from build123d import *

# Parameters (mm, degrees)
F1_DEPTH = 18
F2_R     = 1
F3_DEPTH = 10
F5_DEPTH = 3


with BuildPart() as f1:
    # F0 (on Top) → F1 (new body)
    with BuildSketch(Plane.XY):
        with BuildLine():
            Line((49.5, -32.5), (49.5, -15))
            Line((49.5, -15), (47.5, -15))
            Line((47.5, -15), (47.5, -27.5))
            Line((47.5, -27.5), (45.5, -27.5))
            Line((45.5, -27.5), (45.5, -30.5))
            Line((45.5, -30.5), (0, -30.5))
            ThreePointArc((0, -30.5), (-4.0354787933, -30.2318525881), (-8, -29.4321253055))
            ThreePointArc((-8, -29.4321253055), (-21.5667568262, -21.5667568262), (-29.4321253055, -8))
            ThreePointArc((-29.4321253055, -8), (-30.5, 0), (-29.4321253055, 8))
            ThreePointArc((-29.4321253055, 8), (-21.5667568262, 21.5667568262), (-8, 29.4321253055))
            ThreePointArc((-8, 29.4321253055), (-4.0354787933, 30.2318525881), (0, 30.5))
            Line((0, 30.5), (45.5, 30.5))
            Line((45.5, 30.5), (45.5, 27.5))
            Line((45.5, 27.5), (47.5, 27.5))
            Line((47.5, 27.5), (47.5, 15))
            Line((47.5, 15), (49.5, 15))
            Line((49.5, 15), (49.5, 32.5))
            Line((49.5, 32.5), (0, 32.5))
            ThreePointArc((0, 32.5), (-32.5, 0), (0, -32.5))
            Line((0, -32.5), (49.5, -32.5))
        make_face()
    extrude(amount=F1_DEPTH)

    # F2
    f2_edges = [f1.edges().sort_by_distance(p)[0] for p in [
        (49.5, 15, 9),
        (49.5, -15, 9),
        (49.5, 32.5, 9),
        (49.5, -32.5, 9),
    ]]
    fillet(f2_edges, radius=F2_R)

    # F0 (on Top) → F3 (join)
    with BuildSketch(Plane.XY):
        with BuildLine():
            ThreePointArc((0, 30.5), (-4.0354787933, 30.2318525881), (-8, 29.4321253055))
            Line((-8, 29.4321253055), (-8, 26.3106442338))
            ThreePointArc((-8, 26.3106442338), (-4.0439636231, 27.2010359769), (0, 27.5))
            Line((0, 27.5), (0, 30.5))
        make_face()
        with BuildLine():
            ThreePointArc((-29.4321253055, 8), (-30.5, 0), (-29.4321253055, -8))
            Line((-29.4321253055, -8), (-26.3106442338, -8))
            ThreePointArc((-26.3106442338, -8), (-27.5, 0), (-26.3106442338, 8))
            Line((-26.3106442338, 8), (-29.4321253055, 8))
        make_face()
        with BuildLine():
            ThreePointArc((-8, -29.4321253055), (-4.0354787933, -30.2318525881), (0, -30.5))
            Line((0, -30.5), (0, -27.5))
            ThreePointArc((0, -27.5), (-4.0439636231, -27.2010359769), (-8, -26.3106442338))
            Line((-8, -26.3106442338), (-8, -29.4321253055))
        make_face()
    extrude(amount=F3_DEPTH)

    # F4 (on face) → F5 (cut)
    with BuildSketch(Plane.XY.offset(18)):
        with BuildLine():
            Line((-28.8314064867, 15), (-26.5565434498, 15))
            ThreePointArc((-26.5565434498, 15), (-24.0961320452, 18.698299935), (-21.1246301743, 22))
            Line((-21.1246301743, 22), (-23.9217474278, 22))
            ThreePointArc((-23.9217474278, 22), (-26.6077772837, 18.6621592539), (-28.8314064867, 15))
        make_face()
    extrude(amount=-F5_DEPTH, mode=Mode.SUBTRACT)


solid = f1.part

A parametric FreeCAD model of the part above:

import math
import FreeCAD as App
import Part
import Sketcher
from FreeCAD import Vector


def edges_at(feature, points):
    """Names of the edges that pass closest to the given points."""
    edges = feature.Shape.Edges
    near = lambda p: min(range(len(edges)), key=lambda i: edges[i].distToShape(Part.Vertex(*p))[0])
    return sorted({f"Edge{near(p) + 1}" for p in points})

doc = App.newDocument("Part")
params = doc.addObject("Spreadsheet::Sheet", "Params")
for row, (alias, value) in enumerate([
    ("sketch1_radius", "30.5 mm"),
    ("sketch1_radius2", "32.5 mm"),
    ("sketch1_width", "2 mm"),
    ("sketch1_height", "3 mm"),
    ("sketch1_width2", "45.5 mm"),
    ("pad1_length", "18 mm"),
    ("fillet_radius", "1 mm"),
    ("sketch2_radius", "30.5 mm"),
    ("sketch2_radius2", "27.5 mm"),
    ("pad2_length", "10 mm"),
    ("sketch3_radius", "30.5 mm"),
    ("sketch3_radius2", "32.5 mm"),
    ("pocket1_length", "3 mm"),
], start=1):
    params.set(f"A{row}", alias)
    params.set(f"B{row}", "=" + value)
    params.setAlias(f"B{row}", alias)

body = doc.addObject("PartDesign::Body", "Body")

# Sketch on XY plane
sketch1 = body.newObject("Sketcher::SketchObject", "Sketch")
sketch1.AttachmentSupport = (doc.getObject("XY_Plane"), [""])
sketch1.MapMode = "FlatFace"
sketch1.addGeometry([
    Part.LineSegment(Vector(49.5, -32.5, 0), Vector(49.5, -15, 0)),  # 0
    Part.LineSegment(Vector(49.5, -15, 0), Vector(47.5, -15, 0)),  # 1
    Part.LineSegment(Vector(47.5, -15, 0), Vector(47.5, -27.5, 0)),  # 2
    Part.LineSegment(Vector(47.5, -27.5, 0), Vector(45.5, -27.5, 0)),  # 3
    Part.LineSegment(Vector(45.5, -27.5, 0), Vector(45.5, -30.5, 0)),  # 4
    Part.LineSegment(Vector(45.5, -30.5, 0), Vector(0, -30.5, 0)),  # 5
    Part.ArcOfCircle(Part.Circle(Vector(0, 0, 0), Vector(0, 0, 1), 30.5), math.radians(-105.21), math.radians(-90)),  # 6
    Part.ArcOfCircle(Part.Circle(Vector(0, 0, 0), Vector(0, 0, 1), 30.5), math.radians(-165), math.radians(-105)),  # 7
    Part.ArcOfCircle(Part.Circle(Vector(0, 0, 0), Vector(0, 0, 1), 30.5), math.radians(165), math.radians(195)),  # 8
    Part.ArcOfCircle(Part.Circle(Vector(0, 0, 0), Vector(0, 0, 1), 30.5), math.radians(105), math.radians(165)),  # 9
    Part.ArcOfCircle(Part.Circle(Vector(0, 0, 0), Vector(0, 0, 1), 30.5), math.radians(90), math.radians(105.21)),  # 10
    Part.LineSegment(Vector(0, 30.5, 0), Vector(45.5, 30.5, 0)),  # 11
    Part.LineSegment(Vector(45.5, 30.5, 0), Vector(45.5, 27.5, 0)),  # 12
    Part.LineSegment(Vector(45.5, 27.5, 0), Vector(47.5, 27.5, 0)),  # 13
    Part.LineSegment(Vector(47.5, 27.5, 0), Vector(47.5, 15, 0)),  # 14
    Part.LineSegment(Vector(47.5, 15, 0), Vector(49.5, 15, 0)),  # 15
    Part.LineSegment(Vector(49.5, 15, 0), Vector(49.5, 32.5, 0)),  # 16
    Part.LineSegment(Vector(49.5, 32.5, 0), Vector(0, 32.5, 0)),  # 17
    Part.ArcOfCircle(Part.Circle(Vector(0, 0, 0), Vector(0, 0, 1), 32.5), math.radians(90), math.radians(270)),  # 18
    Part.LineSegment(Vector(0, -32.5, 0), Vector(49.5, -32.5, 0)),  # 19
], False)
sketch1.addConstraint([
    Sketcher.Constraint("Coincident", 0, 2, 1, 1),
    Sketcher.Constraint("Coincident", 1, 2, 2, 1),
    Sketcher.Constraint("Coincident", 2, 2, 3, 1),
    Sketcher.Constraint("Coincident", 3, 2, 4, 1),
    Sketcher.Constraint("Coincident", 4, 2, 5, 1),
    Sketcher.Constraint("Tangent", 5, 2, 6, 2),
    Sketcher.Constraint("Tangent", 6, 1, 7, 2),
    Sketcher.Constraint("Tangent", 7, 1, 8, 2),
    Sketcher.Constraint("Tangent", 8, 1, 9, 2),
    Sketcher.Constraint("Tangent", 9, 1, 10, 2),
    Sketcher.Constraint("Tangent", 10, 1, 11, 1),
    Sketcher.Constraint("Coincident", 11, 2, 12, 1),
    Sketcher.Constraint("Coincident", 12, 2, 13, 1),
    Sketcher.Constraint("Coincident", 13, 2, 14, 1),
    Sketcher.Constraint("Coincident", 14, 2, 15, 1),
    Sketcher.Constraint("Coincident", 15, 2, 16, 1),
    Sketcher.Constraint("Coincident", 16, 2, 17, 1),
    Sketcher.Constraint("Tangent", 17, 2, 18, 1),
    Sketcher.Constraint("Tangent", 18, 2, 19, 1),
    Sketcher.Constraint("Coincident", 19, 2, 0, 1),
    Sketcher.Constraint("Vertical", 0),
    Sketcher.Constraint("Horizontal", 1),
    Sketcher.Constraint("Vertical", 2),
    Sketcher.Constraint("Horizontal", 3),
    Sketcher.Constraint("Vertical", 4),
    Sketcher.Constraint("Horizontal", 5),
    Sketcher.Constraint("Horizontal", 11),
    Sketcher.Constraint("Vertical", 12),
    Sketcher.Constraint("Horizontal", 13),
    Sketcher.Constraint("Vertical", 14),
    Sketcher.Constraint("Horizontal", 15),
    Sketcher.Constraint("Vertical", 16),
    Sketcher.Constraint("Horizontal", 17),
    Sketcher.Constraint("Horizontal", 19),
    Sketcher.Constraint("Coincident", 6, 3, -1, 1),
    Sketcher.Constraint("Coincident", 8, 3, -1, 1),
    Sketcher.Constraint("Coincident", 10, 3, -1, 1),
    Sketcher.Constraint("Coincident", 18, 3, -1, 1),
    Sketcher.Constraint("Symmetric", 3, 2, 12, 2, -1),
    Sketcher.Constraint("Symmetric", 1, 2, 14, 2, -1),
    Sketcher.Constraint("Vertical", 7, 1, 8, 1),
    Sketcher.Constraint("Vertical", 6, 1, 9, 1),
    Sketcher.Constraint("Vertical", 0, 2, 15, 2),
    Sketcher.Constraint("Equal", 1, 3),
    Sketcher.Constraint("Radius", 6, 30.5),
    Sketcher.Constraint("Radius", 18, 32.5),
    Sketcher.Constraint("DistanceX", 1, 2, 1, 1, 2.0),
    Sketcher.Constraint("DistanceY", 4, 2, 4, 1, 3.0),
    Sketcher.Constraint("DistanceX", 5, 2, 5, 1, 45.5),
    Sketcher.Constraint("DistanceY", 0, 1, 0, 2, 17.5),
    Sketcher.Constraint("DistanceX", 6, 1, -1, 1, 8.0),
    Sketcher.Constraint("DistanceY", 7, 1, -1, 1, 8.0),
])
sketch1.setExpression("Constraints[44]", "Params.sketch1_radius")
sketch1.setExpression("Constraints[45]", "Params.sketch1_radius2")
sketch1.setExpression("Constraints[46]", "Params.sketch1_width")
sketch1.setExpression("Constraints[47]", "Params.sketch1_height")
sketch1.setExpression("Constraints[48]", "Params.sketch1_width2")
pad1 = body.newObject("PartDesign::Pad", "Pad")
pad1.Profile = sketch1
pad1.setExpression("Length", "Params.pad1_length")
doc.recompute()

fillet = body.newObject("PartDesign::Fillet", "Fillet")
fillet.Base = (pad1, edges_at(pad1, [
    (49.5, 15, 9),
    (49.5, -15, 9),
    (49.5, 32.5, 9),
    (49.5, -32.5, 9),
]))
fillet.setExpression("Radius", "Params.fillet_radius")

# Sketch on XY plane
sketch2 = body.newObject("Sketcher::SketchObject", "Sketch001")
sketch2.AttachmentSupport = (doc.getObject("XY_Plane"), [""])
sketch2.MapMode = "FlatFace"
sketch2.addGeometry([
    Part.ArcOfCircle(Part.Circle(Vector(0, 0, 0), Vector(0, 0, 1), 30.5), math.radians(90), math.radians(105.21)),  # 0
    Part.LineSegment(Vector(-8, 29.4, 0), Vector(-8, 26.3, 0)),  # 1
    Part.ArcOfCircle(Part.Circle(Vector(0, 0, 0), Vector(0, 0, 1), 27.5), math.radians(90), math.radians(106.91)),  # 2
    Part.LineSegment(Vector(0, 27.5, 0), Vector(0, 30.5, 0)),  # 3
    Part.ArcOfCircle(Part.Circle(Vector(0, 0, 0), Vector(0, 0, 1), 30.5), math.radians(165), math.radians(195)),  # 4
    Part.LineSegment(Vector(-29.4, -8, 0), Vector(-26.3, -8, 0)),  # 5
    Part.ArcOfCircle(Part.Circle(Vector(0, 0, 0), Vector(0, 0, 1), 27.5), math.radians(163), math.radians(197)),  # 6
    Part.LineSegment(Vector(-26.3, 8, 0), Vector(-29.4, 8, 0)),  # 7
    Part.ArcOfCircle(Part.Circle(Vector(0, 0, 0), Vector(0, 0, 1), 30.5), math.radians(-105.21), math.radians(-90)),  # 8
    Part.LineSegment(Vector(0, -30.5, 0), Vector(0, -27.5, 0)),  # 9
    Part.ArcOfCircle(Part.Circle(Vector(0, 0, 0), Vector(0, 0, 1), 27.5), math.radians(-106.91), math.radians(-90)),  # 10
    Part.LineSegment(Vector(-8, -26.3, 0), Vector(-8, -29.4, 0)),  # 11
], False)
sketch2.addConstraint([
    Sketcher.Constraint("Coincident", 0, 2, 1, 1),
    Sketcher.Constraint("Coincident", 1, 2, 2, 2),
    Sketcher.Constraint("Coincident", 2, 1, 3, 1),
    Sketcher.Constraint("Coincident", 3, 2, 0, 1),
    Sketcher.Constraint("Coincident", 4, 2, 5, 1),
    Sketcher.Constraint("Coincident", 5, 2, 6, 2),
    Sketcher.Constraint("Coincident", 6, 1, 7, 1),
    Sketcher.Constraint("Coincident", 7, 2, 4, 1),
    Sketcher.Constraint("Coincident", 8, 2, 9, 1),
    Sketcher.Constraint("Coincident", 9, 2, 10, 2),
    Sketcher.Constraint("Coincident", 10, 1, 11, 1),
    Sketcher.Constraint("Coincident", 11, 2, 8, 1),
    Sketcher.Constraint("Vertical", 1),
    Sketcher.Constraint("Vertical", 3),
    Sketcher.Constraint("Horizontal", 5),
    Sketcher.Constraint("Horizontal", 7),
    Sketcher.Constraint("Vertical", 9),
    Sketcher.Constraint("Vertical", 11),
    Sketcher.Constraint("Coincident", 0, 3, -1, 1),
    Sketcher.Constraint("Coincident", 2, 3, -1, 1),
    Sketcher.Constraint("Coincident", 4, 3, -1, 1),
    Sketcher.Constraint("Coincident", 6, 3, -1, 1),
    Sketcher.Constraint("Coincident", 8, 3, -1, 1),
    Sketcher.Constraint("Coincident", 10, 3, -1, 1),
    Sketcher.Constraint("Equal", 0, 4),
    Sketcher.Constraint("Equal", 2, 6),
    Sketcher.Constraint("Equal", 4, 8),
    Sketcher.Constraint("Equal", 6, 10),
    Sketcher.Constraint("PointOnObject", 2, 1, -2),
    Sketcher.Constraint("PointOnObject", 8, 2, -2),
    Sketcher.Constraint("Vertical", 5, 2, 6, 1),
    Sketcher.Constraint("Vertical", 1, 2, 10, 1),
    Sketcher.Constraint("Equal", 7, 1),
    Sketcher.Constraint("Radius", 0, 30.5),
    Sketcher.Constraint("Radius", 2, 27.5),
    Sketcher.Constraint("DistanceX", 0, 2, -1, 1, 8.0),
])
sketch2.setExpression("Constraints[33]", "Params.sketch2_radius")
sketch2.setExpression("Constraints[34]", "Params.sketch2_radius2")
pad2 = body.newObject("PartDesign::Pad", "Pad001")
pad2.Profile = sketch2
pad2.setExpression("Length", "Params.pad2_length")

# Sketch on XY plane
sketch3 = body.newObject("Sketcher::SketchObject", "Sketch002")
sketch3.AttachmentSupport = (doc.getObject("XY_Plane"), [""])
sketch3.MapMode = "FlatFace"
sketch3.AttachmentOffset = App.Placement(Vector(0, 0, 18), App.Rotation())
sketch3.addGeometry([
    Part.LineSegment(Vector(-28.8, 15, 0), Vector(-26.6, 15, 0)),
    Part.ArcOfCircle(Part.Circle(Vector(0, 0, 0), Vector(0, 0, 1), 30.5), math.radians(133.84), math.radians(150.54)),
    Part.LineSegment(Vector(-21.1, 22, 0), Vector(-23.9, 22, 0)),
    Part.ArcOfCircle(Part.Circle(Vector(0, 0, 0), Vector(0, 0, 1), 32.5), math.radians(137.4), math.radians(152.51)),
], False)
sketch3.addConstraint([
    Sketcher.Constraint("Coincident", 0, 2, 1, 2),
    Sketcher.Constraint("Coincident", 1, 1, 2, 1),
    Sketcher.Constraint("Coincident", 2, 2, 3, 1),
    Sketcher.Constraint("Coincident", 3, 2, 0, 1),
    Sketcher.Constraint("Horizontal", 0),
    Sketcher.Constraint("Horizontal", 2),
    Sketcher.Constraint("Coincident", 1, 3, -1, 1),
    Sketcher.Constraint("Coincident", 3, 3, -1, 1),
    Sketcher.Constraint("Radius", 1, 30.5),
    Sketcher.Constraint("Radius", 3, 32.5),
    Sketcher.Constraint("DistanceY", -1, 1, 0, 2, 15.0),
    Sketcher.Constraint("DistanceY", -1, 1, 1, 1, 22.0),
])
sketch3.setExpression("Constraints[8]", "Params.sketch3_radius")
sketch3.setExpression("Constraints[9]", "Params.sketch3_radius2")
pocket1 = body.newObject("PartDesign::Pocket", "Pocket")
pocket1.Profile = sketch3
pocket1.setExpression("Length", "Params.pocket1_length")

doc.recompute()
